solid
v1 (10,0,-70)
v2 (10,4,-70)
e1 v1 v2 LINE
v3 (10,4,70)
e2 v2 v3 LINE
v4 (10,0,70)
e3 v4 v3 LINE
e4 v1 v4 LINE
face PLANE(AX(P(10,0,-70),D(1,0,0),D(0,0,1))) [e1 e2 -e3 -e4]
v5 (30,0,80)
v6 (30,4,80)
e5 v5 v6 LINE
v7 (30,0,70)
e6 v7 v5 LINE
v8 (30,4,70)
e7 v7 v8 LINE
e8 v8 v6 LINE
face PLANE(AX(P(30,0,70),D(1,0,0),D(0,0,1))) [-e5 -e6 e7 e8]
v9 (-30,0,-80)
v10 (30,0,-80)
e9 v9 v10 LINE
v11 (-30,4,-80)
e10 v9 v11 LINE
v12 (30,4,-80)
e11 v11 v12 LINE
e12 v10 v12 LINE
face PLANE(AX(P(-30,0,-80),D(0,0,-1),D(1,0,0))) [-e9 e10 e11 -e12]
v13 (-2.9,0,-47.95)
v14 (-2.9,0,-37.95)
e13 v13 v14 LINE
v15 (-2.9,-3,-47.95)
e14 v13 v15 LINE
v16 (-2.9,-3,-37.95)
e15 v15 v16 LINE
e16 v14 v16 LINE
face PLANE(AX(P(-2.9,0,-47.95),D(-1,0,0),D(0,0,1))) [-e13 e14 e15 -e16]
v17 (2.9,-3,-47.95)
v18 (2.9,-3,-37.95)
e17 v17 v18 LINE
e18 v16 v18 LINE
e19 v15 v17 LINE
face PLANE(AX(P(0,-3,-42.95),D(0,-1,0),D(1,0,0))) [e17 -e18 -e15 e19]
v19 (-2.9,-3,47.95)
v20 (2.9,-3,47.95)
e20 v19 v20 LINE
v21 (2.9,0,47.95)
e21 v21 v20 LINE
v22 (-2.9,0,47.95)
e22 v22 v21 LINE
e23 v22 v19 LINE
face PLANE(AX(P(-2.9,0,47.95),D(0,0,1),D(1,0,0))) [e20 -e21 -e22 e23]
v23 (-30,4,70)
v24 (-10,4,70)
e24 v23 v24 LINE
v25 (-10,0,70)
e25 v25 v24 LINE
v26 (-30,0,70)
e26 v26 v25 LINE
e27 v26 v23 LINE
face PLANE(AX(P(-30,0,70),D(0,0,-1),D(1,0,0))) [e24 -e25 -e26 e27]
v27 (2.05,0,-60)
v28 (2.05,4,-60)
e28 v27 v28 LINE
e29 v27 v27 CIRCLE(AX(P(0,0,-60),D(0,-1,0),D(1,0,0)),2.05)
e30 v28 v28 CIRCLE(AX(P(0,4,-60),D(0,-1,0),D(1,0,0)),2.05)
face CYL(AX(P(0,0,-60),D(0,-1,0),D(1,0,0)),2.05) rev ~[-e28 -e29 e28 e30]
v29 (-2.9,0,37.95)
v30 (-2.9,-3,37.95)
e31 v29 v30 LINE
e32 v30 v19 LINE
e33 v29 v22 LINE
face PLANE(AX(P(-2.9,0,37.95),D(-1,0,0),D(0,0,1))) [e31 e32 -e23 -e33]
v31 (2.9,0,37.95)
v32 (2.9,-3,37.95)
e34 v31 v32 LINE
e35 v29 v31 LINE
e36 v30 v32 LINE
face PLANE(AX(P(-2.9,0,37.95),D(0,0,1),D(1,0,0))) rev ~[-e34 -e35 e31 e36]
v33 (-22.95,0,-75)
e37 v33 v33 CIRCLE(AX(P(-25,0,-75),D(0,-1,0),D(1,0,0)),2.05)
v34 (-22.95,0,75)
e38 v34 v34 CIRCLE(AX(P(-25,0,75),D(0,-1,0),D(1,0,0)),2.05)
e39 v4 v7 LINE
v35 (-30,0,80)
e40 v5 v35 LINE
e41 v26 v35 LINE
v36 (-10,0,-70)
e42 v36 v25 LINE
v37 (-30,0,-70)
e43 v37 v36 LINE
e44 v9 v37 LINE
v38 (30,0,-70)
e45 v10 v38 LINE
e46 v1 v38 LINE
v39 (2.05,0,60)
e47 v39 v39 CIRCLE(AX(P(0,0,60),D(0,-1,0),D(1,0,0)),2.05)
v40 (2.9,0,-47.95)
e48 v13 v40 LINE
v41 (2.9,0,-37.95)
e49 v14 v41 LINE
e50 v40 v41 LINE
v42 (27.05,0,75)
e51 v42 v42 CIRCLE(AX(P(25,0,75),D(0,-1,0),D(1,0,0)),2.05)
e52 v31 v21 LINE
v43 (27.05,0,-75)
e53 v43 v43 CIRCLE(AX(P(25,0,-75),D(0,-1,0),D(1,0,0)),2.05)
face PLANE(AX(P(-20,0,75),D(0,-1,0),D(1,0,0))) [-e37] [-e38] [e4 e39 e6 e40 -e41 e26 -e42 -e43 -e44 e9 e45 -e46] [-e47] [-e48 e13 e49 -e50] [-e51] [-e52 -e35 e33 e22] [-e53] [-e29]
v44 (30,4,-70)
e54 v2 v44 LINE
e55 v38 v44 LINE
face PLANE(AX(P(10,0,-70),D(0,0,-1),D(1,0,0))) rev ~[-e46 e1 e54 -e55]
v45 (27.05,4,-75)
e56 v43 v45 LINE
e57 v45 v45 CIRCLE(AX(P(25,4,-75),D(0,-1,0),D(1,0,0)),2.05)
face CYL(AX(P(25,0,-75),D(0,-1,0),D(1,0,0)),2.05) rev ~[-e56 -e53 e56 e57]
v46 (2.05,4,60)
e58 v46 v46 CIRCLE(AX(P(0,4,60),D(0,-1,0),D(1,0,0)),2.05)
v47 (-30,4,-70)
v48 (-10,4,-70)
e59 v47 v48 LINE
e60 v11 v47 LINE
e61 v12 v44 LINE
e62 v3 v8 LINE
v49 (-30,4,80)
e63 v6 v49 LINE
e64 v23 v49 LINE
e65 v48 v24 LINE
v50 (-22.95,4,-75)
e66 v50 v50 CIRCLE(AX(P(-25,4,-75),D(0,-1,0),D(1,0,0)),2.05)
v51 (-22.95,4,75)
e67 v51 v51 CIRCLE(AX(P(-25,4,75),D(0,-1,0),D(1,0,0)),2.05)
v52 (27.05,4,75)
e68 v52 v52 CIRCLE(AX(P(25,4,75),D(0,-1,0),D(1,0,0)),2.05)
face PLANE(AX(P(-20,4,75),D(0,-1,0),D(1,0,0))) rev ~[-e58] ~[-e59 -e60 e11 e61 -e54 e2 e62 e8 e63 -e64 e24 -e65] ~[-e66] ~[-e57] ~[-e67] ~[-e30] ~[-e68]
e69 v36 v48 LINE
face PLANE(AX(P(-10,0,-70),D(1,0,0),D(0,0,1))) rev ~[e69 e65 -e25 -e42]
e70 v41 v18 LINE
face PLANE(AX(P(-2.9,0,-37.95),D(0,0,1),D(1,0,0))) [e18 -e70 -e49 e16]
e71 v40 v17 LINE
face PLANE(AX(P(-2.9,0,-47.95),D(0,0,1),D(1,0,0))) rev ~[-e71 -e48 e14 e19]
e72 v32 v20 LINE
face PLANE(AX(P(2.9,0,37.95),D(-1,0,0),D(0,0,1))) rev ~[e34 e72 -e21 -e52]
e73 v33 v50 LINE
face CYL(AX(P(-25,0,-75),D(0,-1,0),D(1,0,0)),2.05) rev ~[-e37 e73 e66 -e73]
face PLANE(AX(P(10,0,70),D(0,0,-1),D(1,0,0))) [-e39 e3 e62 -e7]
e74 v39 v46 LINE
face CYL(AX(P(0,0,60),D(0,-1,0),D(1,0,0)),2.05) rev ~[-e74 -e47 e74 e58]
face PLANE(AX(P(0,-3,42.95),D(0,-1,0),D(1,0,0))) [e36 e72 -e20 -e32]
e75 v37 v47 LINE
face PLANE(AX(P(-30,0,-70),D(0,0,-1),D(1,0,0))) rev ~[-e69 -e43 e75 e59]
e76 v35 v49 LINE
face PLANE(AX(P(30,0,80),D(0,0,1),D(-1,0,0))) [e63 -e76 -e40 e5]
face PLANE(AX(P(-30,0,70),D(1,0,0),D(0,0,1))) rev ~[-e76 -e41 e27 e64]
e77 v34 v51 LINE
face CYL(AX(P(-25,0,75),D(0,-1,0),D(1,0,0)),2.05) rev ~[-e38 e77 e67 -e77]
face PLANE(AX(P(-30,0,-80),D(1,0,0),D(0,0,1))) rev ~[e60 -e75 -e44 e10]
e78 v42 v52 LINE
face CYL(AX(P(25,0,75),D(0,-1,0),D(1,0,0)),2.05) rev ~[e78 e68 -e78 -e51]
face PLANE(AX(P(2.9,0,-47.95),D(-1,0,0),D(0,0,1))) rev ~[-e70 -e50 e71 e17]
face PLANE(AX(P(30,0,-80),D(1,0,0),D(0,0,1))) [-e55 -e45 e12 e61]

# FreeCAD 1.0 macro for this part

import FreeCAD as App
import Part
import Sketcher
from FreeCAD import Vector
Q = App.Units.Quantity


def add_polygon(sketch, points):
    """Adds a closed chain of lines whose ends are joined by coincident constraints."""
    first, n = sketch.GeometryCount, len(points)
    for a, b in zip(points, points[1:] + points[:1]):
        sketch.addGeometry(Part.LineSegment(App.Vector(*a, 0), App.Vector(*b, 0)), False)
    for i in range(n):
        sketch.addConstraint(Sketcher.Constraint("Coincident", first + i, 2, first + (i + 1) % n, 1))

doc = App.newDocument("Part")
body = doc.addObject("PartDesign::Body", "Body")

# Sketch on XZ plane
sketch1 = body.newObject("Sketcher::SketchObject", "Sketch")
sketch1.AttachmentSupport = (doc.getObject("XZ_Plane"), [""])
sketch1.MapMode = "FlatFace"
add_polygon(sketch1, [(-30, 80), (-30, 70), (-10, 70), (-10, -70), (-30, -70), (-30, -80), (30, -80), (30, -70), (10, -70), (10, 70), (30, 70), (30, 80)])  # lines 0-11
sketch1.addGeometry(Part.Circle(Vector(-25, -75, 0), Vector(0, 0, 1), 2.05), False)  # 12
sketch1.addGeometry(Part.Circle(Vector(0, -60, 0), Vector(0, 0, 1), 2.05), False)  # 13
sketch1.addGeometry(Part.Circle(Vector(25, -75, 0), Vector(0, 0, 1), 2.05), False)  # 14
sketch1.addGeometry(Part.Circle(Vector(-25, 75, 0), Vector(0, 0, 1), 2.05), False)  # 15
sketch1.addGeometry(Part.Circle(Vector(0, 60, 0), Vector(0, 0, 1), 2.05), False)  # 16
sketch1.addGeometry(Part.Circle(Vector(25, 75, 0), Vector(0, 0, 1), 2.05), False)  # 17
sketch1.addConstraint(Sketcher.Constraint("Vertical", 0))
sketch1.addConstraint(Sketcher.Constraint("Horizontal", 1))
sketch1.addConstraint(Sketcher.Constraint("Vertical", 2))
sketch1.addConstraint(Sketcher.Constraint("Horizontal", 3))
sketch1.addConstraint(Sketcher.Constraint("Vertical", 4))
sketch1.addConstraint(Sketcher.Constraint("Horizontal", 5))
sketch1.addConstraint(Sketcher.Constraint("Vertical", 6))
sketch1.addConstraint(Sketcher.Constraint("Horizontal", 7))
sketch1.addConstraint(Sketcher.Constraint("Vertical", 8))
sketch1.addConstraint(Sketcher.Constraint("Horizontal", 9))
sketch1.addConstraint(Sketcher.Constraint("Vertical", 10))
sketch1.addConstraint(Sketcher.Constraint("Horizontal", 11))
sketch1.addConstraint(Sketcher.Constraint("Equal", 12, 13))
sketch1.addConstraint(Sketcher.Constraint("Equal", 13, 14))
sketch1.addConstraint(Sketcher.Constraint("Equal", 14, 15))
sketch1.addConstraint(Sketcher.Constraint("Equal", 15, 16))
sketch1.addConstraint(Sketcher.Constraint("Equal", 16, 17))
sketch1.addConstraint(Sketcher.Constraint("Symmetric", 14, 3, 15, 3, -1, 1))
sketch1.addConstraint(Sketcher.Constraint("Symmetric", 13, 3, 16, 3, -1, 1))
sketch1.addConstraint(Sketcher.Constraint("Symmetric", 12, 3, 17, 3, -1, 1))
sketch1.addConstraint(Sketcher.Constraint("Symmetric", 0, 2, 6, 2, -1, 1))
sketch1.addConstraint(Sketcher.Constraint("Symmetric", 2, 2, 8, 2, -1, 1))
sketch1.addConstraint(Sketcher.Constraint("Symmetric", 4, 2, 10, 2, -1, 1))
sketch1.addConstraint(Sketcher.Constraint("Symmetric", 12, 3, 14, 3, -2))
sketch1.addConstraint(Sketcher.Constraint("Symmetric", 3, 2, 6, 2, -2))
sketch1.addConstraint(Sketcher.Constraint("PointOnObject", 13, 3, -2))
sketch1.addConstraint(Sketcher.Constraint("Diameter", 12, Q("4.1 mm")))
sketch1.addConstraint(Sketcher.Constraint("DistanceX", 1, 1, 1, 2, Q("20 mm")))
sketch1.addConstraint(Sketcher.Constraint("DistanceX", 5, 1, 5, 2, Q("60 mm")))
sketch1.addConstraint(Sketcher.Constraint("DistanceY", 0, 2, 0, 1, Q("10 mm")))
sketch1.addConstraint(Sketcher.Constraint("DistanceY", 2, 2, 2, 1, Q("140 mm")))
sketch1.addConstraint(Sketcher.Constraint("DistanceX", 12, 3, -1, 1, Q("25 mm")))
sketch1.addConstraint(Sketcher.Constraint("DistanceY", 12, 3, -1, 1, Q("75 mm")))
sketch1.addConstraint(Sketcher.Constraint("DistanceY", 13, 3, -1, 1, Q("60 mm")))
pad1 = body.newObject("PartDesign::Pad", "Pad")
pad1.Profile = sketch1
pad1.Length = 4
pad1.Reversed = True

# Sketch on XZ plane
sketch2 = body.newObject("Sketcher::SketchObject", "Sketch001")
sketch2.AttachmentSupport = (doc.getObject("XZ_Plane"), [""])
sketch2.MapMode = "FlatFace"
add_polygon(sketch2, [(-2.9, 47.95), (-2.9, 37.95), (2.9, 37.95), (2.9, 47.95)])  # lines 0-3
add_polygon(sketch2, [(-2.9, -37.95), (-2.9, -47.95), (2.9, -47.95), (2.9, -37.95)])  # lines 4-7
sketch2.addConstraint(Sketcher.Constraint("Vertical", 0))
sketch2.addConstraint(Sketcher.Constraint("Horizontal", 1))
sketch2.addConstraint(Sketcher.Constraint("Vertical", 2))
sketch2.addConstraint(Sketcher.Constraint("Horizontal", 3))
sketch2.addConstraint(Sketcher.Constraint("Vertical", 4))
sketch2.addConstraint(Sketcher.Constraint("Horizontal", 5))
sketch2.addConstraint(Sketcher.Constraint("Vertical", 6))
sketch2.addConstraint(Sketcher.Constraint("Horizontal", 7))
sketch2.addConstraint(Sketcher.Constraint("Symmetric", 2, 2, 4, 2, -1, 1))
sketch2.addConstraint(Sketcher.Constraint("Symmetric", 0, 2, 6, 2, -1, 1))
sketch2.addConstraint(Sketcher.Constraint("Vertical", 3, 2, 4, 2))
sketch2.addConstraint(Sketcher.Constraint("DistanceY", 0, 2, 0, 1, Q("10 mm")))
sketch2.addConstraint(Sketcher.Constraint("DistanceX", 1, 1, 1, 2, Q("5.8 mm")))
sketch2.addConstraint(Sketcher.Constraint("DistanceY", 4, 2, 0, 2, Q("85.9 mm")))
pad2 = body.newObject("PartDesign::Pad", "Pad001")
pad2.Profile = sketch2
pad2.Length = 3

doc.recompute()
